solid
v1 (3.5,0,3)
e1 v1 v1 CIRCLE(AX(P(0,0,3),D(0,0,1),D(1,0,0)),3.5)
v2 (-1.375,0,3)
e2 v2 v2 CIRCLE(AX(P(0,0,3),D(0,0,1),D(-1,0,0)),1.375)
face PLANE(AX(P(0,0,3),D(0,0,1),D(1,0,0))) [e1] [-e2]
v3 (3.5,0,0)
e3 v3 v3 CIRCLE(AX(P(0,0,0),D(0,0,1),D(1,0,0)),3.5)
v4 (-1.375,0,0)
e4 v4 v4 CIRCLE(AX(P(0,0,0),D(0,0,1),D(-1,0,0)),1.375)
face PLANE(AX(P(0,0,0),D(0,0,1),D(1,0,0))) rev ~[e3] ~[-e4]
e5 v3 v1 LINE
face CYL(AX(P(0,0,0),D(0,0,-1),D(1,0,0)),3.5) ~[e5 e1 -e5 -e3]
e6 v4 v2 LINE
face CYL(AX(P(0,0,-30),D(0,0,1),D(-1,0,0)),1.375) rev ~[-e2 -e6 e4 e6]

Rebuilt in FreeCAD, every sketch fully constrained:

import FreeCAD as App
import Part
import Sketcher
from FreeCAD import Vector
Q = App.Units.Quantity

doc = App.newDocument("Part")
body = doc.addObject("PartDesign::Body", "Body")

sketch1 = body.newObject("Sketcher::SketchObject", "Sketch")
sketch1.AttachmentSupport = (doc.getObject("XY_Plane"), [""])
sketch1.MapMode = "FlatFace"
sketch1.addGeometry(Part.Circle(Vector(0, 0, 0), Vector(0, 0, 1), 3.5), False)
sketch1.addConstraint([
    Sketcher.Constraint("Coincident", 0, 3, -1, 1),
    Sketcher.Constraint("Diameter", 0, Q("7 mm")),
])
pad1 = body.newObject("PartDesign::Pad", "Pad")
pad1.Profile = sketch1
pad1.Length = 3

sketch2 = body.newObject("Sketcher::SketchObject", "Sketch001")
sketch2.AttachmentSupport = (doc.getObject("XY_Plane"), [""])
sketch2.MapMode = "FlatFace"
sketch2.addGeometry(Part.Circle(Vector(0, 0, 0), Vector(0, 0, 1), 1.4), False)
sketch2.addConstraint([
    Sketcher.Constraint("Coincident", 0, 3, -1, 1),
    Sketcher.Constraint("Diameter", 0, Q("2.75 mm")),
])
doc.recompute()
hole = body.newObject("PartDesign::Hole", "Hole")
hole.Profile = sketch2
hole.ThreadType = "None"
hole.Diameter = 2.75
hole.DepthType = "Dimension"
hole.Depth = 30
hole.DrillPoint = "Flat"
hole.Reversed = True

doc.recompute()
